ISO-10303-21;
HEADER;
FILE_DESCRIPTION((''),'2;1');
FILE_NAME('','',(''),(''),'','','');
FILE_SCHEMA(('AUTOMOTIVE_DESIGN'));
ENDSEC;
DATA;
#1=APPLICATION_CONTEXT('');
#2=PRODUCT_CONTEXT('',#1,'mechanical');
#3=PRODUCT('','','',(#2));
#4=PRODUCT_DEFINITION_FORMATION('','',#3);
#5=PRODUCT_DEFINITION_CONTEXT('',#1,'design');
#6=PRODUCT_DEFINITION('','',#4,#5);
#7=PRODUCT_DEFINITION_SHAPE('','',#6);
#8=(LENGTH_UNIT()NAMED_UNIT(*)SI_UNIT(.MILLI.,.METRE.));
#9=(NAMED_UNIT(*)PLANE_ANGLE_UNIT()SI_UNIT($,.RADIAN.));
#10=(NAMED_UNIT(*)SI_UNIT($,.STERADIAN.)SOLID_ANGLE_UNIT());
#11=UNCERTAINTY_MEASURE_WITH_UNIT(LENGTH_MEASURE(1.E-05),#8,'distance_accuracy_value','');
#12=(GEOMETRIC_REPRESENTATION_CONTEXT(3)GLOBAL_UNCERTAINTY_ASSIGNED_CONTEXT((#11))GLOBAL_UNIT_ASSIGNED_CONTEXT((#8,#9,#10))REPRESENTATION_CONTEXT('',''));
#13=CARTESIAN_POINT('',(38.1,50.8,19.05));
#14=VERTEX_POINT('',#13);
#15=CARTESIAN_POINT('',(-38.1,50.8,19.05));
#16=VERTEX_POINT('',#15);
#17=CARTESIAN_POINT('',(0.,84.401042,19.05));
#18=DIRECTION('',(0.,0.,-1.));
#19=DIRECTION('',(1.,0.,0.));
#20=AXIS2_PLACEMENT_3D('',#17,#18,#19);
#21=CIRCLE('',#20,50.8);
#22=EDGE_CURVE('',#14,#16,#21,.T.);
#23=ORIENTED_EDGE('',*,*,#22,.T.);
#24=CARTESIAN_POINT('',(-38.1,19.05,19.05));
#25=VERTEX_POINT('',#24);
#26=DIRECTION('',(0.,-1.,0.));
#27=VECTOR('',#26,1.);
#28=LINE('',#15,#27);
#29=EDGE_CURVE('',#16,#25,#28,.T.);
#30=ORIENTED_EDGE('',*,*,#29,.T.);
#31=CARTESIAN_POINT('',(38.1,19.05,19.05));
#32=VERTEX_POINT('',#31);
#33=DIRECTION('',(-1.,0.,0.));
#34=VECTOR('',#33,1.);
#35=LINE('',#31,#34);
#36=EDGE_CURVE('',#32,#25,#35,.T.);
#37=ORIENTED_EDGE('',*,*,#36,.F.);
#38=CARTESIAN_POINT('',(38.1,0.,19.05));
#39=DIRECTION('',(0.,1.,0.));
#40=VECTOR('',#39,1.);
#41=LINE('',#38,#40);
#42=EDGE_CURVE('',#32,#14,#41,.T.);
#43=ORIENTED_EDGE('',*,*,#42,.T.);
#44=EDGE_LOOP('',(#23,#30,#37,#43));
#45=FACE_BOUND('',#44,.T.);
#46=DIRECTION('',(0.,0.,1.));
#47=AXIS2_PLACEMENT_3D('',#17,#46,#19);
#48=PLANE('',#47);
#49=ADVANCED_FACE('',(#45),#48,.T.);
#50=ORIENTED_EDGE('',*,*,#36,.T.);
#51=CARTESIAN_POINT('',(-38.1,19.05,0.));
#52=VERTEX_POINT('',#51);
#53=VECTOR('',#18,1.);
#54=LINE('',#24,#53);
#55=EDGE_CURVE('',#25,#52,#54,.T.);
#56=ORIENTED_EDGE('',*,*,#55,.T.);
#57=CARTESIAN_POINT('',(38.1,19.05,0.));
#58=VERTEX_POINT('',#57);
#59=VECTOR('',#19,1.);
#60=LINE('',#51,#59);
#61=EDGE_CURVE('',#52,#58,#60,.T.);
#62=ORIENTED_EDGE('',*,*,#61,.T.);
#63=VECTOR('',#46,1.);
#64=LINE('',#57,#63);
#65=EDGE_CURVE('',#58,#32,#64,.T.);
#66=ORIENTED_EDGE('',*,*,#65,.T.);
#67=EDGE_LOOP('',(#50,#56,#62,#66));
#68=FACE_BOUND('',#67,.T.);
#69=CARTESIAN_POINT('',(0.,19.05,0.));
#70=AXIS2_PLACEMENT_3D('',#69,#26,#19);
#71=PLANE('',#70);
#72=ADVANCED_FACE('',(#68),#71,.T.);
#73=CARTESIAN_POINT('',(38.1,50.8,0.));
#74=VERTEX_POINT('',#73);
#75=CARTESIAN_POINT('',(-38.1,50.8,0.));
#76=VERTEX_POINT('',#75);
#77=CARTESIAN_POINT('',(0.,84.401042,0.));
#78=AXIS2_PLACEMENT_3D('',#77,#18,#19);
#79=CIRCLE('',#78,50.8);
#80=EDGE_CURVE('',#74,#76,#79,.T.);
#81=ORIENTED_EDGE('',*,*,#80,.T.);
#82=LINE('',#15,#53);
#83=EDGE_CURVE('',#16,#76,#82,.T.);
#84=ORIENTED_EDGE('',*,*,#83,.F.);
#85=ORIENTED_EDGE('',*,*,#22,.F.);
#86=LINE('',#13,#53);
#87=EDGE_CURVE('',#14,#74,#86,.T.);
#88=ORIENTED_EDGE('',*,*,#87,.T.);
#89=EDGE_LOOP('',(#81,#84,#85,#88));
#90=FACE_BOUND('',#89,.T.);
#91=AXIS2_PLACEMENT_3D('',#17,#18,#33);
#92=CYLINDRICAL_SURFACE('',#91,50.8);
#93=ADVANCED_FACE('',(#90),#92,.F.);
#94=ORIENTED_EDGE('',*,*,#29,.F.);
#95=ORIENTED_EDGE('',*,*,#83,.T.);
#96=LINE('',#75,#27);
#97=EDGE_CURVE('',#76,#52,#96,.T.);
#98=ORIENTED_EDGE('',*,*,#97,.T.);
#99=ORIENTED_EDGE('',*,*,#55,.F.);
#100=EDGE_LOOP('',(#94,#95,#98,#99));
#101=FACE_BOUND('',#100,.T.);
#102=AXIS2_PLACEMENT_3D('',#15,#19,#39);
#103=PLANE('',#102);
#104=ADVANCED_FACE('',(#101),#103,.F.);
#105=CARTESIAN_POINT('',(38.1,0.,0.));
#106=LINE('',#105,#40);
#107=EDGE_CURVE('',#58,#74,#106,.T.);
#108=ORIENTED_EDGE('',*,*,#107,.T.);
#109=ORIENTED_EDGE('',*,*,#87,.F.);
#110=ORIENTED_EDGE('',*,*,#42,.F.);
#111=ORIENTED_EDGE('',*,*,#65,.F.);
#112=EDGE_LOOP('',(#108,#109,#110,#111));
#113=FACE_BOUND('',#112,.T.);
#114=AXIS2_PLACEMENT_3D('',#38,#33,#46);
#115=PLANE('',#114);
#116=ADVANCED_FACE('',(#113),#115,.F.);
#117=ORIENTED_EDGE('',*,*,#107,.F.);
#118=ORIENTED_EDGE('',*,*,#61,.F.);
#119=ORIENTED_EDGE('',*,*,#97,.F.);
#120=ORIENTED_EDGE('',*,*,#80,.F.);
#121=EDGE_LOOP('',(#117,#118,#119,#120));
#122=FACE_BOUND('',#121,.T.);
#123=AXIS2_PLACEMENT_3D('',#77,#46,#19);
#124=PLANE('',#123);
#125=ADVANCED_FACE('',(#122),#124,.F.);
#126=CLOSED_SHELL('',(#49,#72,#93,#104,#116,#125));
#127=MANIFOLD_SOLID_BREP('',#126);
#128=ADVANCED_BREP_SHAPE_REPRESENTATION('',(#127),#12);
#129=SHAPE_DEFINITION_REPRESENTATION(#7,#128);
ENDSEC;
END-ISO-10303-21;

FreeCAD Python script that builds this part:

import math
import FreeCAD as App
import Part
import Sketcher
from FreeCAD import Vector
Q = App.Units.Quantity


def add_polygon(sketch, points):
    """Adds a closed chain of lines whose ends are joined by coincident constraints."""
    first, n = sketch.GeometryCount, len(points)
    for a, b in zip(points, points[1:] + points[:1]):
        sketch.addGeometry(Part.LineSegment(App.Vector(*a, 0), App.Vector(*b, 0)), False)
    for i in range(n):
        sketch.addConstraint(Sketcher.Constraint("Coincident", first + i, 2, first + (i + 1) % n, 1))

doc = App.newDocument("Part")
body = doc.addObject("PartDesign::Body", "Body")

# Sketch on XY plane
sketch1 = doc.addObject("Sketcher::SketchObject", "Sketch")
body.addObject(sketch1)
sketch1.AttachmentSupport = (doc.XY_Plane, [""])
sketch1.MapMode = "FlatFace"
sketch1.addGeometry(Part.LineSegment(Vector(-38.1, 50.8, 0), Vector(-38.1, 0, 0)), False)
sketch1.addGeometry(Part.LineSegment(Vector(-38.1, 0, 0), Vector(38.1, 0, 0)), False)
sketch1.addGeometry(Part.LineSegment(Vector(38.1, 0, 0), Vector(38.1, 50.8, 0)), False)
sketch1.addGeometry(Part.ArcOfCircle(Part.Circle(Vector(0, 84.401042, 0), Vector(0, 0, 1), 50.8), math.radians(-138.590378), math.radians(-41.409622)), False)
sketch1.addConstraint(Sketcher.Constraint("Coincident", 0, 2, 1, 1))
sketch1.addConstraint(Sketcher.Constraint("Coincident", 1, 2, 2, 1))
sketch1.addConstraint(Sketcher.Constraint("Coincident", 2, 2, 3, 2))
sketch1.addConstraint(Sketcher.Constraint("Coincident", 3, 1, 0, 1))
sketch1.addConstraint(Sketcher.Constraint("Vertical", 0))
sketch1.addConstraint(Sketcher.Constraint("Horizontal", 1))
sketch1.addConstraint(Sketcher.Constraint("Vertical", 2))
sketch1.addConstraint(Sketcher.Constraint("Symmetric", 0, 2, 1, 2, -1, 1))
sketch1.addConstraint(Sketcher.Constraint("PointOnObject", 3, 3, -2))
sketch1.addConstraint(Sketcher.Constraint("Radius", 3, Q("2 in")))
sketch1.addConstraint(Sketcher.Constraint("DistanceX", 1, 1, 1, 2, Q("3 in")))
sketch1.addConstraint(Sketcher.Constraint("DistanceY", 0, 2, 0, 1, Q("2 in")))
pad1 = doc.addObject("PartDesign::Pad", "Pad")
body.addObject(pad1)
pad1.Profile = sketch1
pad1.Length = Q("0.75 in")

# Sketch on XZ plane
sketch2 = doc.addObject("Sketcher::SketchObject", "Sketch001")
body.addObject(sketch2)
sketch2.AttachmentSupport = (doc.XZ_Plane, [""])
sketch2.MapMode = "FlatFace"
add_polygon(sketch2, [(-38.1, 19.05), (-38.1, 0), (38.1, 0), (38.1, 19.05)])  # lines 0-3
sketch2.addConstraint(Sketcher.Constraint("Vertical", 0))
sketch2.addConstraint(Sketcher.Constraint("Horizontal", 1))
sketch2.addConstraint(Sketcher.Constraint("Vertical", 2))
sketch2.addConstraint(Sketcher.Constraint("Horizontal", 3))
sketch2.addConstraint(Sketcher.Constraint("Symmetric", 0, 2, 1, 2, -1, 1))
sketch2.addConstraint(Sketcher.Constraint("DistanceX", 1, 1, 1, 2, Q("3 in")))
sketch2.addConstraint(Sketcher.Constraint("DistanceY", 0, 2, 0, 1, Q("0.75 in")))
pocket1 = doc.addObject("PartDesign::Pocket", "Pocket")
body.addObject(pocket1)
pocket1.Profile = sketch2
pocket1.Length = Q("0.75 in")

doc.recompute()
